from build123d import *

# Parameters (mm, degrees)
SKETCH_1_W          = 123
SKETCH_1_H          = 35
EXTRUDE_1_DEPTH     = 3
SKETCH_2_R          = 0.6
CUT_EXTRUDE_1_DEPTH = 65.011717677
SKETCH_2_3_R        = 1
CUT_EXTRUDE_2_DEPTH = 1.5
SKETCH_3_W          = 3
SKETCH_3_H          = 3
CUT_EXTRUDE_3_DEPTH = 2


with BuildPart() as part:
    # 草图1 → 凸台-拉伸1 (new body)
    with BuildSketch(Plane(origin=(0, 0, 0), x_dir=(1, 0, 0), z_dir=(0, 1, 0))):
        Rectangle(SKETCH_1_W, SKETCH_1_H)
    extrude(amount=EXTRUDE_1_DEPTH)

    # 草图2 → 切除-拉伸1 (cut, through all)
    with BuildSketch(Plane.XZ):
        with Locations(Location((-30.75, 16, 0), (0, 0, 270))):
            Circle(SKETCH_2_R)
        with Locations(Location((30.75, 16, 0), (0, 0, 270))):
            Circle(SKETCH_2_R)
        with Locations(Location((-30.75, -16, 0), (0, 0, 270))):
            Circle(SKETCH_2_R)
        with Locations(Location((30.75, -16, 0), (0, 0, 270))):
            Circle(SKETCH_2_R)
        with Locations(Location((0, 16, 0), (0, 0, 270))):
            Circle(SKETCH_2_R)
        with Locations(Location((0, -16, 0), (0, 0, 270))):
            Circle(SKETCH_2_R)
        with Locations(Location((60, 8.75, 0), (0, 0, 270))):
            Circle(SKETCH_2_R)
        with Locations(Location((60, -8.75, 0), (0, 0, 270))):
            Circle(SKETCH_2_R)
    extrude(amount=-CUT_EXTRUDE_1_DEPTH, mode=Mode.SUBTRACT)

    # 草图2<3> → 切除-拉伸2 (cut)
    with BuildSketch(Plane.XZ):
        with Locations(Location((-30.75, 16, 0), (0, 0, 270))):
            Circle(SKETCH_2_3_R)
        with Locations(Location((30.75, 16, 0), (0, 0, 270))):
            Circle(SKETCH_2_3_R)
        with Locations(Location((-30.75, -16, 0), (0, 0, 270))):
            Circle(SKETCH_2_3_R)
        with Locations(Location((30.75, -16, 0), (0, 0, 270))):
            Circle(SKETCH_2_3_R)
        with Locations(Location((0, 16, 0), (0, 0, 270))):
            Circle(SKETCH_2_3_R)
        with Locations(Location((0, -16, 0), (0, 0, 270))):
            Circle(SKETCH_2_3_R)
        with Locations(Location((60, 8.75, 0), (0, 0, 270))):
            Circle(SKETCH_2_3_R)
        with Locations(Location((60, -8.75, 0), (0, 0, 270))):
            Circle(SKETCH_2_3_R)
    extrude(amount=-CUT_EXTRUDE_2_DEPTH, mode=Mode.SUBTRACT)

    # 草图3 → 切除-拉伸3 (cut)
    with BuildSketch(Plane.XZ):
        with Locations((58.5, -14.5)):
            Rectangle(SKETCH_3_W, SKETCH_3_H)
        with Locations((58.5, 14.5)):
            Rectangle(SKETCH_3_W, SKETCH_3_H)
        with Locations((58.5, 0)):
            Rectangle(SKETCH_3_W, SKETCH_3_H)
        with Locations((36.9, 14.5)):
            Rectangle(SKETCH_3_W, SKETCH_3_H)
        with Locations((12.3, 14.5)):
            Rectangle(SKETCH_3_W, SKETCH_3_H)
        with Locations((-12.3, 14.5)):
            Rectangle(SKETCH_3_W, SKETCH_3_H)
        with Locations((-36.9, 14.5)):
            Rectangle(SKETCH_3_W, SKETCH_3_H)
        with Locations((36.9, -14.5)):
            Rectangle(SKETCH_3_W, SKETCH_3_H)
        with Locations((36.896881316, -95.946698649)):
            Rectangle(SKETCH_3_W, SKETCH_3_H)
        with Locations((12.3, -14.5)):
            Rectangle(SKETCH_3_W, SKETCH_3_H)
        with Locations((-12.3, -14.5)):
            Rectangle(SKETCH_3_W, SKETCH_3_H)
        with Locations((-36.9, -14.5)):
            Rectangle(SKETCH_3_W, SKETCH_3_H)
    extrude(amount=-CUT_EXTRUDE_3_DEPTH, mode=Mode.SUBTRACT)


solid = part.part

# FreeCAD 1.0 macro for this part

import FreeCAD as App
import Part
import Sketcher
from FreeCAD import Vector


def add_polygon(sketch, points):
    """Adds a closed chain of lines whose ends are joined by coincident constraints."""
    first, n = sketch.GeometryCount, len(points)
    for a, b in zip(points, points[1:] + points[:1]):
        sketch.addGeometry(Part.LineSegment(App.Vector(*a, 0), App.Vector(*b, 0)), False)
    for i in range(n):
        sketch.addConstraint(Sketcher.Constraint("Coincident", first + i, 2, first + (i + 1) % n, 1))

doc = App.newDocument("Part")
body = doc.addObject("PartDesign::Body", "Body")

sketch1 = doc.addObject("Sketcher::SketchObject", "Sketch")
body.addObject(sketch1)
sketch1.AttachmentSupport = (doc.XZ_Plane, [""])
sketch1.MapMode = "FlatFace"
add_polygon(sketch1, [(-62, -18), (-62, 18), (62, 18), (62, -18)])
sketch1.addConstraint(Sketcher.Constraint("Vertical", 0))
sketch1.addConstraint(Sketcher.Constraint("Horizontal", 1))
sketch1.addConstraint(Sketcher.Constraint("Vertical", 2))
sketch1.addConstraint(Sketcher.Constraint("Horizontal", 3))
sketch1.addConstraint(Sketcher.Constraint("Symmetric", 0, 2, 2, 2, -1, 1))
sketch1.addConstraint(Sketcher.Constraint("DistanceX", 1, 1, 1, 2, 123.0))
sketch1.addConstraint(Sketcher.Constraint("DistanceY", 0, 1, 0, 2, 35.0))
pad1 = doc.addObject("PartDesign::Pad", "Pad")
body.addObject(pad1)
pad1.Profile = sketch1
pad1.Length = 3
pad1.Reversed = True

sketch2 = doc.addObject("Sketcher::SketchObject", "Sketch001")
body.addObject(sketch2)
sketch2.AttachmentSupport = (doc.XZ_Plane, [""])
sketch2.MapMode = "FlatFace"
sketch2.addGeometry(Part.Circle(Vector(-30.8, 16, 0), Vector(0, 0, 1), 0.6), False)
sketch2.addGeometry(Part.Circle(Vector(30.8, 16, 0), Vector(0, 0, 1), 0.6), False)
sketch2.addGeometry(Part.Circle(Vector(-30.8, -16, 0), Vector(0, 0, 1), 0.6), False)
sketch2.addGeometry(Part.Circle(Vector(30.8, -16, 0), Vector(0, 0, 1), 0.6), False)
sketch2.addGeometry(Part.Circle(Vector(0, 16, 0), Vector(0, 0, 1), 0.6), False)
sketch2.addGeometry(Part.Circle(Vector(0, -16, 0), Vector(0, 0, 1), 0.6), False)
sketch2.addGeometry(Part.Circle(Vector(60, 8.8, 0), Vector(0, 0, 1), 0.6), False)
sketch2.addGeometry(Part.Circle(Vector(60, -8.8, 0), Vector(0, 0, 1), 0.6), False)
sketch2.addConstraint(Sketcher.Constraint("Equal", 0, 1))
sketch2.addConstraint(Sketcher.Constraint("Equal", 1, 2))
sketch2.addConstraint(Sketcher.Constraint("Equal", 2, 3))
sketch2.addConstraint(Sketcher.Constraint("Equal", 3, 4))
sketch2.addConstraint(Sketcher.Constraint("Equal", 4, 5))
sketch2.addConstraint(Sketcher.Constraint("Equal", 5, 6))
sketch2.addConstraint(Sketcher.Constraint("Equal", 6, 7))
sketch2.addConstraint(Sketcher.Constraint("Symmetric", 1, 3, 2, 3, -1, 1))
sketch2.addConstraint(Sketcher.Constraint("Symmetric", 0, 3, 3, 3, -1, 1))
sketch2.addConstraint(Sketcher.Constraint("Symmetric", 4, 3, 5, 3, -1, 1))
sketch2.addConstraint(Sketcher.Constraint("Symmetric", 0, 3, 1, 3, -2))
sketch2.addConstraint(Sketcher.Constraint("Symmetric", 6, 3, 7, 3, -1))
sketch2.addConstraint(Sketcher.Constraint("PointOnObject", 4, 3, -2))
sketch2.addConstraint(Sketcher.Constraint("Horizontal", 1, 3, 4, 3))
sketch2.addConstraint(Sketcher.Constraint("Diameter", 0, 1.2))
sketch2.addConstraint(Sketcher.Constraint("DistanceY", -1, 1, 0, 3, 16.0))
sketch2.addConstraint(Sketcher.Constraint("DistanceX", -1, 1, 6, 3, 60.0))
sketch2.addConstraint(Sketcher.Constraint("DistanceX", 0, 3, 1, 3, 61.5))
sketch2.addConstraint(Sketcher.Constraint("DistanceY", 7, 3, 6, 3, 17.5))
pocket1 = doc.addObject("PartDesign::Pocket", "Pocket")
body.addObject(pocket1)
pocket1.Profile = sketch2
pocket1.Type = "ThroughAll"

sketch3 = doc.addObject("Sketcher::SketchObject", "Sketch002")
body.addObject(sketch3)
sketch3.AttachmentSupport = (doc.XZ_Plane, [""])
sketch3.MapMode = "FlatFace"
sketch3.addGeometry(Part.Circle(Vector(-30.8, 16, 0), Vector(0, 0, 1), 1), False)
sketch3.addGeometry(Part.Circle(Vector(30.8, 16, 0), Vector(0, 0, 1), 1), False)
sketch3.addGeometry(Part.Circle(Vector(-30.8, -16, 0), Vector(0, 0, 1), 1), False)
sketch3.addGeometry(Part.Circle(Vector(30.8, -16, 0), Vector(0, 0, 1), 1), False)
sketch3.addGeometry(Part.Circle(Vector(0, 16, 0), Vector(0, 0, 1), 1), False)
sketch3.addGeometry(Part.Circle(Vector(0, -16, 0), Vector(0, 0, 1), 1), False)
sketch3.addGeometry(Part.Circle(Vector(60, 8.8, 0), Vector(0, 0, 1), 1), False)
sketch3.addGeometry(Part.Circle(Vector(60, -8.8, 0), Vector(0, 0, 1), 1), False)
sketch3.addConstraint(Sketcher.Constraint("Equal", 0, 1))
sketch3.addConstraint(Sketcher.Constraint("Equal", 1, 2))
sketch3.addConstraint(Sketcher.Constraint("Equal", 2, 3))
sketch3.addConstraint(Sketcher.Constraint("Equal", 3, 4))
sketch3.addConstraint(Sketcher.Constraint("Equal", 4, 5))
sketch3.addConstraint(Sketcher.Constraint("Equal", 5, 6))
sketch3.addConstraint(Sketcher.Constraint("Equal", 6, 7))
sketch3.addConstraint(Sketcher.Constraint("Symmetric", 1, 3, 2, 3, -1, 1))
sketch3.addConstraint(Sketcher.Constraint("Symmetric", 0, 3, 3, 3, -1, 1))
sketch3.addConstraint(Sketcher.Constraint("Symmetric", 4, 3, 5, 3, -1, 1))
sketch3.addConstraint(Sketcher.Constraint("Symmetric", 0, 3, 1, 3, -2))
sketch3.addConstraint(Sketcher.Constraint("Symmetric", 6, 3, 7, 3, -1))
sketch3.addConstraint(Sketcher.Constraint("PointOnObject", 4, 3, -2))
sketch3.addConstraint(Sketcher.Constraint("Horizontal", 1, 3, 4, 3))
sketch3.addConstraint(Sketcher.Constraint("Diameter", 0, 2.0))
sketch3.addConstraint(Sketcher.Constraint("DistanceY", -1, 1, 0, 3, 16.0))
sketch3.addConstraint(Sketcher.Constraint("DistanceX", -1, 1, 6, 3, 60.0))
sketch3.addConstraint(Sketcher.Constraint("DistanceX", 0, 3, 1, 3, 61.5))
sketch3.addConstraint(Sketcher.Constraint("DistanceY", 7, 3, 6, 3, 17.5))
pocket2 = doc.addObject("PartDesign::Pocket", "Pocket001")
body.addObject(pocket2)
pocket2.Profile = sketch3
pocket2.Length = 1.5

sketch4 = doc.addObject("Sketcher::SketchObject", "Sketch003")
body.addObject(sketch4)
sketch4.AttachmentSupport = (doc.XZ_Plane, [""])
sketch4.MapMode = "FlatFace"
add_polygon(sketch4, [(57, -13), (57, -16), (60, -16), (60, -13)])
add_polygon(sketch4, [(57, 16), (57, 13), (60, 13), (60, 16)])
add_polygon(sketch4, [(57, 1.5), (57, -1.5), (60, -1.5), (60, 1.5)])
add_polygon(sketch4, [(35.4, 16), (35.4, 13), (38.4, 13), (38.4, 16)])
add_polygon(sketch4, [(10.8, 16), (10.8, 13), (13.8, 13), (13.8, 16)])
add_polygon(sketch4, [(-13.8, 16), (-13.8, 13), (-10.8, 13), (-10.8, 16)])
add_polygon(sketch4, [(-38.4, 16), (-38.4, 13), (-35.4, 13), (-35.4, 16)])
add_polygon(sketch4, [(35.4, -13), (35.4, -16), (38.4, -16), (38.4, -13)])
add_polygon(sketch4, [(35.4, -94.4), (35.4, -97.4), (38.4, -97.4), (38.4, -94.4)])
add_polygon(sketch4, [(10.8, -13), (10.8, -16), (13.8, -16), (13.8, -13)])
add_polygon(sketch4, [(-13.8, -13), (-13.8, -16), (-10.8, -16), (-10.8, -13)])
add_polygon(sketch4, [(-38.4, -13), (-38.4, -16), (-35.4, -16), (-35.4, -13)])
sketch4.addConstraint(Sketcher.Constraint("Vertical", 0))
sketch4.addConstraint(Sketcher.Constraint("Horizontal", 1))
sketch4.addConstraint(Sketcher.Constraint("Vertical", 2))
sketch4.addConstraint(Sketcher.Constraint("Horizontal", 3))
sketch4.addConstraint(Sketcher.Constraint("Vertical", 4))
sketch4.addConstraint(Sketcher.Constraint("Horizontal", 5))
sketch4.addConstraint(Sketcher.Constraint("Vertical", 6))
sketch4.addConstraint(Sketcher.Constraint("Horizontal", 7))
sketch4.addConstraint(Sketcher.Constraint("Vertical", 8))
sketch4.addConstraint(Sketcher.Constraint("Horizontal", 9))
sketch4.addConstraint(Sketcher.Constraint("Vertical", 10))
sketch4.addConstraint(Sketcher.Constraint("Horizontal", 11))
sketch4.addConstraint(Sketcher.Constraint("Vertical", 12))
sketch4.addConstraint(Sketcher.Constraint("Horizontal", 13))
sketch4.addConstraint(Sketcher.Constraint("Vertical", 14))
sketch4.addConstraint(Sketcher.Constraint("Horizontal", 15))
sketch4.addConstraint(Sketcher.Constraint("Vertical", 16))
sketch4.addConstraint(Sketcher.Constraint("Horizontal", 17))
sketch4.addConstraint(Sketcher.Constraint("Vertical", 18))
sketch4.addConstraint(Sketcher.Constraint("Horizontal", 19))
sketch4.addConstraint(Sketcher.Constraint("Vertical", 20))
sketch4.addConstraint(Sketcher.Constraint("Horizontal", 21))
sketch4.addConstraint(Sketcher.Constraint("Vertical", 22))
sketch4.addConstraint(Sketcher.Constraint("Horizontal", 23))
sketch4.addConstraint(Sketcher.Constraint("Vertical", 24))
sketch4.addConstraint(Sketcher.Constraint("Horizontal", 25))
sketch4.addConstraint(Sketcher.Constraint("Vertical", 26))
sketch4.addConstraint(Sketcher.Constraint("Horizontal", 27))
sketch4.addConstraint(Sketcher.Constraint("Vertical", 28))
sketch4.addConstraint(Sketcher.Constraint("Horizontal", 29))
sketch4.addConstraint(Sketcher.Constraint("Vertical", 30))
sketch4.addConstraint(Sketcher.Constraint("Horizontal", 31))
sketch4.addConstraint(Sketcher.Constraint("Vertical", 32))
sketch4.addConstraint(Sketcher.Constraint("Horizontal", 33))
sketch4.addConstraint(Sketcher.Constraint("Vertical", 34))
sketch4.addConstraint(Sketcher.Constraint("Horizontal", 35))
sketch4.addConstraint(Sketcher.Constraint("Vertical", 36))
sketch4.addConstraint(Sketcher.Constraint("Horizontal", 37))
sketch4.addConstraint(Sketcher.Constraint("Vertical", 38))
sketch4.addConstraint(Sketcher.Constraint("Horizontal", 39))
sketch4.addConstraint(Sketcher.Constraint("Vertical", 40))
sketch4.addConstraint(Sketcher.Constraint("Horizontal", 41))
sketch4.addConstraint(Sketcher.Constraint("Vertical", 42))
sketch4.addConstraint(Sketcher.Constraint("Horizontal", 43))
sketch4.addConstraint(Sketcher.Constraint("Vertical", 44))
sketch4.addConstraint(Sketcher.Constraint("Horizontal", 45))
sketch4.addConstraint(Sketcher.Constraint("Vertical", 46))
sketch4.addConstraint(Sketcher.Constraint("Horizontal", 47))
sketch4.addConstraint(Sketcher.Constraint("Symmetric", 26, 2, 28, 2, -1, 1))
sketch4.addConstraint(Sketcher.Constraint("Symmetric", 24, 2, 30, 2, -1, 1))
sketch4.addConstraint(Sketcher.Constraint("Symmetric", 22, 2, 36, 2, -1, 1))
sketch4.addConstraint(Sketcher.Constraint("Symmetric", 20, 2, 38, 2, -1, 1))
sketch4.addConstraint(Sketcher.Constraint("Symmetric", 18, 2, 40, 2, -1, 1))
sketch4.addConstraint(Sketcher.Constraint("Symmetric", 16, 2, 42, 2, -1, 1))
sketch4.addConstraint(Sketcher.Constraint("Symmetric", 14, 2, 44, 2, -1, 1))
sketch4.addConstraint(Sketcher.Constraint("Symmetric", 12, 2, 46, 2, -1, 1))
sketch4.addConstraint(Sketcher.Constraint("Symmetric", 17, 2, 20, 2, -2))
sketch4.addConstraint(Sketcher.Constraint("Symmetric", 19, 2, 22, 2, -2))
sketch4.addConstraint(Sketcher.Constraint("Symmetric", 13, 2, 24, 2, -2))
sketch4.addConstraint(Sketcher.Constraint("Symmetric", 15, 2, 26, 2, -2))
sketch4.addConstraint(Sketcher.Constraint("Symmetric", 3, 2, 4, 2, -1))
sketch4.addConstraint(Sketcher.Constraint("Symmetric", 1, 2, 6, 2, -1))
sketch4.addConstraint(Sketcher.Constraint("Horizontal", 5, 2, 12, 2))
sketch4.addConstraint(Sketcher.Constraint("Horizontal", 7, 2, 14, 2))
sketch4.addConstraint(Sketcher.Constraint("Horizontal", 13, 2, 16, 2))
sketch4.addConstraint(Sketcher.Constraint("Horizontal", 15, 2, 18, 2))
sketch4.addConstraint(Sketcher.Constraint("Vertical", 7, 2, 8, 2))
sketch4.addConstraint(Sketcher.Constraint("Vertical", 6, 2, 9, 2))
sketch4.addConstraint(Sketcher.Constraint("Equal", 11, 13))
sketch4.addConstraint(Sketcher.Constraint("Equal", 15, 17))
sketch4.addConstraint(Sketcher.Constraint("Equal", 31, 33))
sketch4.addConstraint(Sketcher.Constraint("Equal", 47, 0))
sketch4.addConstraint(Sketcher.Constraint("Equal", 6, 8))
sketch4.addConstraint(Sketcher.Constraint("Equal", 30, 32))
sketch4.addConstraint(Sketcher.Constraint("DistanceX", 1, 1, 1, 2, 3.0))
sketch4.addConstraint(Sketcher.Constraint("DistanceX", -1, 1, 0, 2, 57.0))
sketch4.addConstraint(Sketcher.Constraint("DistanceY", 0, 2, -1, 1, 16.0))
sketch4.addConstraint(Sketcher.Constraint("DistanceY", 8, 2, -1, 1, 1.5))
sketch4.addConstraint(Sketcher.Constraint("DistanceX", -1, 1, 12, 2, 35.4))
sketch4.addConstraint(Sketcher.Constraint("DistanceX", -1, 1, 16, 2, 10.8))
sketch4.addConstraint(Sketcher.Constraint("DistanceY", 32, 2, -1, 1, 97.446699))
sketch4.addConstraint(Sketcher.Constraint("DistanceX", -1, 1, 32, 2, 35.396881))
pocket3 = doc.addObject("PartDesign::Pocket", "Pocket002")
body.addObject(pocket3)
pocket3.Profile = sketch4
pocket3.Length = 2

doc.recompute()
